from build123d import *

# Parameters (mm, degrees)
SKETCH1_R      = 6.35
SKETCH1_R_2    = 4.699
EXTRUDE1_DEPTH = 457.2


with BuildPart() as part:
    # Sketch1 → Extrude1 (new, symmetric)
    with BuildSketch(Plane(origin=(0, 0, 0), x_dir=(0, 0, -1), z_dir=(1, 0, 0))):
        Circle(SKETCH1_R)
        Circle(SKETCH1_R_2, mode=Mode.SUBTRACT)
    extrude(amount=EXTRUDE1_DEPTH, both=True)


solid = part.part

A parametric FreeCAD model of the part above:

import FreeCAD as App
import Part
import Sketcher
Q = App.Units.Quantity

doc = App.newDocument("Part")
body = doc.addObject("PartDesign::Body", "Body")

# Sketch on YZ plane
sketch1 = body.newObject("Sketcher::SketchObject", "Sketch")
sketch1.AttachmentSupport = (doc.getObject("YZ_Plane"), [""])
sketch1.MapMode = "FlatFace"
sketch1.addGeometry([
    Part.Circle(App.Vector(0, 0, 0), App.Vector(0, 0, 1), 6.3),
    Part.Circle(App.Vector(0, 0, 0), App.Vector(0, 0, 1), 4.7),
], False)
sketch1.addConstraint([
    Sketcher.Constraint("Coincident", 0, 3, -1, 1),
    Sketcher.Constraint("Coincident", 1, 3, -1, 1),
    Sketcher.Constraint("Diameter", 0, Q("0.5 in")),
    Sketcher.Constraint("Diameter", 1, Q("0.37 in")),
])
pad1 = body.newObject("PartDesign::Pad", "Pad")
pad1.Profile = sketch1
pad1.Length = Q("36 in")
pad1.Midplane = True

doc.recompute()
